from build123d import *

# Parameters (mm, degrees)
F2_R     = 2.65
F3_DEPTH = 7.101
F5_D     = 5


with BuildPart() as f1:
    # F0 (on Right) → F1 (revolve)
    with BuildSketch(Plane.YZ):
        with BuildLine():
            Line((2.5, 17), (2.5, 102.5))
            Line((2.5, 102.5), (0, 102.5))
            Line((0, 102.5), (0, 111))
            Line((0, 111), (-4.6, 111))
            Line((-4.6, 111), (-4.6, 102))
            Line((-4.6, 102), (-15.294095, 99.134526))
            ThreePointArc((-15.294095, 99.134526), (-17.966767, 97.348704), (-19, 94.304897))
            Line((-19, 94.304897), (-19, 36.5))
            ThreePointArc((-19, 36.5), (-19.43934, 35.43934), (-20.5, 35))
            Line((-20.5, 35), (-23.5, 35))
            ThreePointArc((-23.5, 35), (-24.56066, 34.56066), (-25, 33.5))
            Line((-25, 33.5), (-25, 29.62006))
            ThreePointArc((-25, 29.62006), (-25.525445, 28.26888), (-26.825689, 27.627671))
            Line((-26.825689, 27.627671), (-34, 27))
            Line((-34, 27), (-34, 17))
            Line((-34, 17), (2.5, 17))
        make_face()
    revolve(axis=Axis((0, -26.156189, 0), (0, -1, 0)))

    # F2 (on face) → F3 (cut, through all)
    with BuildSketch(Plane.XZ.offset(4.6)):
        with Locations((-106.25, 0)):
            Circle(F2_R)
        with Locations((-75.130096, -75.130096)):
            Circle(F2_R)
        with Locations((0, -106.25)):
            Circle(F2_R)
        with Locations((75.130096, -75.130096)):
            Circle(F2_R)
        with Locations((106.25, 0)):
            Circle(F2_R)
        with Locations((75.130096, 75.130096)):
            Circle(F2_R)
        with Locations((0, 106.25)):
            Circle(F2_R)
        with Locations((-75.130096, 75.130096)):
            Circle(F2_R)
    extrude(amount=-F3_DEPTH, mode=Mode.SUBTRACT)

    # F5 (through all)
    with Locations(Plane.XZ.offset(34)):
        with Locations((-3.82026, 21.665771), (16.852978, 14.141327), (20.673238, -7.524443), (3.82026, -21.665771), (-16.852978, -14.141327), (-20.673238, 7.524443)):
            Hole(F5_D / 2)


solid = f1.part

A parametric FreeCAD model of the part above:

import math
import FreeCAD as App
import Part
import Sketcher

V = App.Vector
Q = App.Units.Quantity

doc = App.newDocument("Part")
params = doc.addObject("Spreadsheet::Sheet", "Params")
for row, (alias, value) in enumerate([
    ("sketch1_radius", "4.999999 mm"),
    ("sketch1_radius2", "1.999999 mm"),
    ("sketch1_radius3", "1.500001 mm"),
    ("sketch1_width", "3 mm"),
    ("sketch1_height", "9 mm"),
    ("revolution_angle", "360 deg"),
    ("sketch2_diameter", "5.3 mm"),
    ("sketch3_diameter", "5 mm"),
    ("hole_diameter", "5 mm"),
], start=1):
    params.set(f"A{row}", alias)
    params.set(f"B{row}", "=" + value)
    params.setAlias(f"B{row}", alias)

body = doc.addObject("PartDesign::Body", "Body")

sketch1 = doc.addObject("Sketcher::SketchObject", "Sketch")
body.addObject(sketch1)
sketch1.AttachmentSupport = (doc.YZ_Plane, [""])
sketch1.MapMode = "FlatFace"
sketch1.addGeometry(Part.LineSegment(V(2.5, 17, 0), V(2.5, 102.5, 0)), False)
sketch1.addGeometry(Part.LineSegment(V(2.5, 102.5, 0), V(0, 102.5, 0)), False)
sketch1.addGeometry(Part.LineSegment(V(0, 102.5, 0), V(0, 111, 0)), False)
sketch1.addGeometry(Part.LineSegment(V(0, 111, 0), V(-4.6, 111, 0)), False)
sketch1.addGeometry(Part.LineSegment(V(-4.6, 111, 0), V(-4.6, 102, 0)), False)
sketch1.addGeometry(Part.LineSegment(V(-4.6, 102, 0), V(-15.3, 99.1, 0)), False)
sketch1.addGeometry(Part.ArcOfCircle(Part.Circle(V(-14, 94.3, 0), V(0, 0, 1), 5), math.radians(105), math.radians(180)), False)
sketch1.addGeometry(Part.LineSegment(V(-19, 94.3, 0), V(-19, 36.5, 0)), False)
sketch1.addGeometry(Part.ArcOfCircle(Part.Circle(V(-20.5, 36.5, 0), V(0, 0, 1), 1.5), math.radians(-90), math.radians(0)), False)
sketch1.addGeometry(Part.LineSegment(V(-20.5, 35, 0), V(-23.5, 35, 0)), False)
sketch1.addGeometry(Part.ArcOfCircle(Part.Circle(V(-23.5, 33.5, 0), V(0, 0, 1), 1.5), math.radians(90), math.radians(180)), False)
sketch1.addGeometry(Part.LineSegment(V(-25, 33.5, 0), V(-25, 29.6, 0)), False)
sketch1.addGeometry(Part.ArcOfCircle(Part.Circle(V(-27, 29.6, 0), V(0, 0, 1), 2), math.radians(-85), math.radians(0)), False)
sketch1.addGeometry(Part.LineSegment(V(-26.8, 27.6, 0), V(-34, 27, 0)), False)
sketch1.addGeometry(Part.LineSegment(V(-34, 27, 0), V(-34, 17, 0)), False)
sketch1.addGeometry(Part.LineSegment(V(-34, 17, 0), V(2.5, 17, 0)), False)
sketch1.addConstraint(Sketcher.Constraint("Coincident", 0, 2, 1, 1))
sketch1.addConstraint(Sketcher.Constraint("Coincident", 1, 2, 2, 1))
sketch1.addConstraint(Sketcher.Constraint("Coincident", 2, 2, 3, 1))
sketch1.addConstraint(Sketcher.Constraint("Coincident", 3, 2, 4, 1))
sketch1.addConstraint(Sketcher.Constraint("Coincident", 4, 2, 5, 1))
sketch1.addConstraint(Sketcher.Constraint("Tangent", 5, 2, 6, 1))
sketch1.addConstraint(Sketcher.Constraint("Tangent", 6, 2, 7, 1))
sketch1.addConstraint(Sketcher.Constraint("Tangent", 7, 2, 8, 2))
sketch1.addConstraint(Sketcher.Constraint("Tangent", 8, 1, 9, 1))
sketch1.addConstraint(Sketcher.Constraint("Tangent", 9, 2, 10, 1))
sketch1.addConstraint(Sketcher.Constraint("Tangent", 10, 2, 11, 1))
sketch1.addConstraint(Sketcher.Constraint("Tangent", 11, 2, 12, 2))
sketch1.addConstraint(Sketcher.Constraint("Tangent", 12, 1, 13, 1))
sketch1.addConstraint(Sketcher.Constraint("Coincident", 13, 2, 14, 1))
sketch1.addConstraint(Sketcher.Constraint("Coincident", 14, 2, 15, 1))
sketch1.addConstraint(Sketcher.Constraint("Coincident", 15, 2, 0, 1))
sketch1.addConstraint(Sketcher.Constraint("Vertical", 0))
sketch1.addConstraint(Sketcher.Constraint("Horizontal", 1))
sketch1.addConstraint(Sketcher.Constraint("Vertical", 2))
sketch1.addConstraint(Sketcher.Constraint("Horizontal", 3))
sketch1.addConstraint(Sketcher.Constraint("Vertical", 4))
sketch1.addConstraint(Sketcher.Constraint("Vertical", 7))
sketch1.addConstraint(Sketcher.Constraint("Horizontal", 9))
sketch1.addConstraint(Sketcher.Constraint("Vertical", 11))
sketch1.addConstraint(Sketcher.Constraint("Vertical", 14))
sketch1.addConstraint(Sketcher.Constraint("Horizontal", 15))
sketch1.addConstraint(Sketcher.Constraint("Equal", 8, 10))
sketch1.addConstraint(Sketcher.Constraint("PointOnObject", 1, 2, -2))
sketch1.addConstraint(Sketcher.Constraint("Radius", 6, Q("4.999999 mm")))
sketch1.addConstraint(Sketcher.Constraint("Radius", 12, Q("1.999999 mm")))
sketch1.addConstraint(Sketcher.Constraint("Radius", 8, Q("1.500001 mm")))
sketch1.addConstraint(Sketcher.Constraint("DistanceX", 9, 2, 9, 1, Q("3 mm")))
sketch1.addConstraint(Sketcher.Constraint("DistanceY", 4, 2, 4, 1, Q("9 mm")))
sketch1.addConstraint(Sketcher.Constraint("DistanceY", 14, 2, 14, 1, Q("10 mm")))
sketch1.addConstraint(Sketcher.Constraint("Angle", 5, Q("-165.000001 deg")))
sketch1.addConstraint(Sketcher.Constraint("Angle", 13, Q("-174.999999 deg")))
sketch1.addConstraint(Sketcher.Constraint("DistanceX", 1, 2, 1, 1, Q("2.5 mm")))
sketch1.addConstraint(Sketcher.Constraint("DistanceX", 3, 2, 3, 1, Q("4.6 mm")))
sketch1.addConstraint(Sketcher.Constraint("DistanceX", 15, 1, 15, 2, Q("36.5 mm")))
sketch1.addConstraint(Sketcher.Constraint("DistanceY", 0, 1, 0, 2, Q("85.5 mm")))
sketch1.addConstraint(Sketcher.Constraint("DistanceY", 2, 1, 2, 2, Q("8.5 mm")))
sketch1.addConstraint(Sketcher.Constraint("DistanceX", 6, 3, -1, 1, Q("14.000001 mm")))
sketch1.addConstraint(Sketcher.Constraint("DistanceY", -1, 1, 2, 2, Q("111 mm")))
sketch1.addConstraint(Sketcher.Constraint("DistanceY", -1, 1, 8, 1, Q("35 mm")))
sketch1.setExpression("Constraints[28]", "Params.sketch1_radius")
sketch1.setExpression("Constraints[29]", "Params.sketch1_radius2")
sketch1.setExpression("Constraints[30]", "Params.sketch1_radius3")
sketch1.setExpression("Constraints[31]", "Params.sketch1_width")
sketch1.setExpression("Constraints[32]", "Params.sketch1_height")
revolution = doc.addObject("PartDesign::Revolution", "Revolution")
body.addObject(revolution)
revolution.Profile = sketch1
revolution.ReferenceAxis = (sketch1, ["H_Axis"])
revolution.setExpression("Angle", "Params.revolution_angle")

sketch2 = doc.addObject("Sketcher::SketchObject", "Sketch001")
body.addObject(sketch2)
sketch2.AttachmentSupport = (doc.XZ_Plane, [""])
sketch2.MapMode = "FlatFace"
sketch2.AttachmentOffset = App.Placement(V(0, 0, 4.6), App.Rotation())
sketch2.addGeometry(Part.Circle(V(-106.2, 0, 0), V(0, 0, 1), 2.6), False)
sketch2.addGeometry(Part.Circle(V(-75.1, -75.1, 0), V(0, 0, 1), 2.6), False)
sketch2.addGeometry(Part.Circle(V(0, -106.2, 0), V(0, 0, 1), 2.6), False)
sketch2.addGeometry(Part.Circle(V(75.1, -75.1, 0), V(0, 0, 1), 2.6), False)
sketch2.addGeometry(Part.Circle(V(106.2, 0, 0), V(0, 0, 1), 2.6), False)
sketch2.addGeometry(Part.Circle(V(75.1, 75.1, 0), V(0, 0, 1), 2.6), False)
sketch2.addGeometry(Part.Circle(V(0, 106.2, 0), V(0, 0, 1), 2.6), False)
sketch2.addGeometry(Part.Circle(V(-75.1, 75.1, 0), V(0, 0, 1), 2.6), False)
sketch2.addConstraint(Sketcher.Constraint("Equal", 0, 1))
sketch2.addConstraint(Sketcher.Constraint("Equal", 1, 2))
sketch2.addConstraint(Sketcher.Constraint("Equal", 2, 3))
sketch2.addConstraint(Sketcher.Constraint("Equal", 3, 4))
sketch2.addConstraint(Sketcher.Constraint("Equal", 4, 5))
sketch2.addConstraint(Sketcher.Constraint("Equal", 5, 6))
sketch2.addConstraint(Sketcher.Constraint("Equal", 6, 7))
sketch2.addConstraint(Sketcher.Constraint("Symmetric", 0, 3, 4, 3, -1, 1))
sketch2.addConstraint(Sketcher.Constraint("Symmetric", 1, 3, 5, 3, -1, 1))
sketch2.addConstraint(Sketcher.Constraint("Symmetric", 2, 3, 6, 3, -1, 1))
sketch2.addConstraint(Sketcher.Constraint("Symmetric", 3, 3, 7, 3, -1, 1))
sketch2.addConstraint(Sketcher.Constraint("Symmetric", 1, 3, 3, 3, -2))
sketch2.addConstraint(Sketcher.Constraint("PointOnObject", 0, 3, -1))
sketch2.addConstraint(Sketcher.Constraint("PointOnObject", 2, 3, -2))
sketch2.addConstraint(Sketcher.Constraint("Diameter", 0, Q("5.3 mm")))
sketch2.addConstraint(Sketcher.Constraint("DistanceX", 0, 3, 4, 3, Q("212.5 mm")))
sketch2.addConstraint(Sketcher.Constraint("DistanceY", 2, 3, -1, 1, Q("106.25 mm")))
sketch2.addConstraint(Sketcher.Constraint("DistanceX", 1, 3, 3, 3, Q("150.260192 mm")))
sketch2.addConstraint(Sketcher.Constraint("DistanceY", 3, 3, 5, 3, Q("150.260192 mm")))
sketch2.setExpression("Constraints[14]", "Params.sketch2_diameter")
pocket1 = doc.addObject("PartDesign::Pocket", "Pocket")
body.addObject(pocket1)
pocket1.Profile = sketch2
pocket1.Type = "ThroughAll"

sketch3 = doc.addObject("Sketcher::SketchObject", "Sketch002")
body.addObject(sketch3)
sketch3.AttachmentSupport = (doc.XZ_Plane, [""])
sketch3.MapMode = "FlatFace"
sketch3.AttachmentOffset = App.Placement(V(0, 0, 34), App.Rotation())
sketch3.addGeometry(Part.Circle(V(-3.8, 21.7, 0), V(0, 0, 1), 2.5), False)
sketch3.addGeometry(Part.Circle(V(16.9, 14.1, 0), V(0, 0, 1), 2.5), False)
sketch3.addGeometry(Part.Circle(V(20.7, -7.5, 0), V(0, 0, 1), 2.5), False)
sketch3.addGeometry(Part.Circle(V(3.8, -21.7, 0), V(0, 0, 1), 2.5), False)
sketch3.addGeometry(Part.Circle(V(-16.9, -14.1, 0), V(0, 0, 1), 2.5), False)
sketch3.addGeometry(Part.Circle(V(-20.7, 7.5, 0), V(0, 0, 1), 2.5), False)
sketch3.addConstraint(Sketcher.Constraint("Equal", 0, 1))
sketch3.addConstraint(Sketcher.Constraint("Equal", 1, 2))
sketch3.addConstraint(Sketcher.Constraint("Equal", 2, 3))
sketch3.addConstraint(Sketcher.Constraint("Equal", 3, 4))
sketch3.addConstraint(Sketcher.Constraint("Equal", 4, 5))
sketch3.addConstraint(Sketcher.Constraint("Symmetric", 0, 3, 3, 3, -1, 1))
sketch3.addConstraint(Sketcher.Constraint("Symmetric", 1, 3, 4, 3, -1, 1))
sketch3.addConstraint(Sketcher.Constraint("Symmetric", 2, 3, 5, 3, -1, 1))
sketch3.addConstraint(Sketcher.Constraint("Diameter", 0, Q("5 mm")))
sketch3.addConstraint(Sketcher.Constraint("DistanceX", 0, 3, 2, 3, Q("24.493498 mm")))
sketch3.addConstraint(Sketcher.Constraint("DistanceX", 0, 3, -1, 1, Q("3.82026 mm")))
sketch3.addConstraint(Sketcher.Constraint("DistanceY", -1, 1, 0, 3, Q("21.665771 mm")))
sketch3.addConstraint(Sketcher.Constraint("DistanceX", -1, 1, 1, 3, Q("16.852978 mm")))
sketch3.addConstraint(Sketcher.Constraint("DistanceY", 2, 3, 1, 3, Q("21.66577 mm")))
sketch3.addConstraint(Sketcher.Constraint("DistanceY", -1, 1, 1, 3, Q("14.141327 mm")))
sketch3.setExpression("Constraints[8]", "Params.sketch3_diameter")
doc.recompute()
hole = doc.addObject("PartDesign::Hole", "Hole")
body.addObject(hole)
hole.Profile = sketch3
hole.ThreadType = "None"
hole.setExpression("Diameter", "Params.hole_diameter")
hole.DepthType = "ThroughAll"

doc.recompute()
